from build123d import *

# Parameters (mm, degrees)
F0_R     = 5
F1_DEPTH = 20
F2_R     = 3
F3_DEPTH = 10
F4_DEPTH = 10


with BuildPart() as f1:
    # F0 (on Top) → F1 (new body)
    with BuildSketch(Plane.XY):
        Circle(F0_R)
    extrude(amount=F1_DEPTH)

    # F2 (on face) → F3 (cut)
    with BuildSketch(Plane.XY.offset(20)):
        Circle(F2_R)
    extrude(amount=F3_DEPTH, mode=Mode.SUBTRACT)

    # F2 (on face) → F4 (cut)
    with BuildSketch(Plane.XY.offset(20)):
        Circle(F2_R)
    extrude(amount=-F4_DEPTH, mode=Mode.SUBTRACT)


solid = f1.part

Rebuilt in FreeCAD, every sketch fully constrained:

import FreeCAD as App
import Part
import Sketcher

doc = App.newDocument("Part")
body = doc.addObject("PartDesign::Body", "Body")

# Sketch on XY plane
sketch1 = body.newObject("Sketcher::SketchObject", "Sketch")
sketch1.AttachmentSupport = (doc.getObject("XY_Plane"), [""])
sketch1.MapMode = "FlatFace"
sketch1.addGeometry(Part.Circle(App.Vector(0, 0, 0), App.Vector(0, 0, 1), 5), False)
sketch1.addConstraint(Sketcher.Constraint("Coincident", 0, 3, -1, 1))
sketch1.addConstraint(Sketcher.Constraint("Diameter", 0, 10.0))
pad1 = body.newObject("PartDesign::Pad", "Pad")
pad1.Profile = sketch1
pad1.Length = 20

# Sketch on XY plane
sketch2 = body.newObject("Sketcher::SketchObject", "Sketch001")
sketch2.AttachmentSupport = (doc.getObject("XY_Plane"), [""])
sketch2.MapMode = "FlatFace"
sketch2.AttachmentOffset = App.Placement(App.Vector(0, 0, 20), App.Rotation())
sketch2.addGeometry(Part.Circle(App.Vector(0, 0, 0), App.Vector(0, 0, 1), 3), False)
sketch2.addConstraint(Sketcher.Constraint("Coincident", 0, 3, -1, 1))
sketch2.addConstraint(Sketcher.Constraint("Diameter", 0, 6.0))
pocket1 = body.newObject("PartDesign::Pocket", "Pocket")
pocket1.Profile = sketch2
pocket1.Length = 10
pocket1.Reversed = True

# Sketch on XY plane
sketch3 = body.newObject("Sketcher::SketchObject", "Sketch002")
sketch3.AttachmentSupport = (doc.getObject("XY_Plane"), [""])
sketch3.MapMode = "FlatFace"
sketch3.AttachmentOffset = App.Placement(App.Vector(0, 0, 20), App.Rotation())
sketch3.addGeometry(Part.Circle(App.Vector(0, 0, 0), App.Vector(0, 0, 1), 3), False)
sketch3.addConstraint(Sketcher.Constraint("Coincident", 0, 3, -1, 1))
sketch3.addConstraint(Sketcher.Constraint("Diameter", 0, 6.0))
pocket2 = body.newObject("PartDesign::Pocket", "Pocket001")
pocket2.Profile = sketch3
pocket2.Length = 10

doc.recompute()
